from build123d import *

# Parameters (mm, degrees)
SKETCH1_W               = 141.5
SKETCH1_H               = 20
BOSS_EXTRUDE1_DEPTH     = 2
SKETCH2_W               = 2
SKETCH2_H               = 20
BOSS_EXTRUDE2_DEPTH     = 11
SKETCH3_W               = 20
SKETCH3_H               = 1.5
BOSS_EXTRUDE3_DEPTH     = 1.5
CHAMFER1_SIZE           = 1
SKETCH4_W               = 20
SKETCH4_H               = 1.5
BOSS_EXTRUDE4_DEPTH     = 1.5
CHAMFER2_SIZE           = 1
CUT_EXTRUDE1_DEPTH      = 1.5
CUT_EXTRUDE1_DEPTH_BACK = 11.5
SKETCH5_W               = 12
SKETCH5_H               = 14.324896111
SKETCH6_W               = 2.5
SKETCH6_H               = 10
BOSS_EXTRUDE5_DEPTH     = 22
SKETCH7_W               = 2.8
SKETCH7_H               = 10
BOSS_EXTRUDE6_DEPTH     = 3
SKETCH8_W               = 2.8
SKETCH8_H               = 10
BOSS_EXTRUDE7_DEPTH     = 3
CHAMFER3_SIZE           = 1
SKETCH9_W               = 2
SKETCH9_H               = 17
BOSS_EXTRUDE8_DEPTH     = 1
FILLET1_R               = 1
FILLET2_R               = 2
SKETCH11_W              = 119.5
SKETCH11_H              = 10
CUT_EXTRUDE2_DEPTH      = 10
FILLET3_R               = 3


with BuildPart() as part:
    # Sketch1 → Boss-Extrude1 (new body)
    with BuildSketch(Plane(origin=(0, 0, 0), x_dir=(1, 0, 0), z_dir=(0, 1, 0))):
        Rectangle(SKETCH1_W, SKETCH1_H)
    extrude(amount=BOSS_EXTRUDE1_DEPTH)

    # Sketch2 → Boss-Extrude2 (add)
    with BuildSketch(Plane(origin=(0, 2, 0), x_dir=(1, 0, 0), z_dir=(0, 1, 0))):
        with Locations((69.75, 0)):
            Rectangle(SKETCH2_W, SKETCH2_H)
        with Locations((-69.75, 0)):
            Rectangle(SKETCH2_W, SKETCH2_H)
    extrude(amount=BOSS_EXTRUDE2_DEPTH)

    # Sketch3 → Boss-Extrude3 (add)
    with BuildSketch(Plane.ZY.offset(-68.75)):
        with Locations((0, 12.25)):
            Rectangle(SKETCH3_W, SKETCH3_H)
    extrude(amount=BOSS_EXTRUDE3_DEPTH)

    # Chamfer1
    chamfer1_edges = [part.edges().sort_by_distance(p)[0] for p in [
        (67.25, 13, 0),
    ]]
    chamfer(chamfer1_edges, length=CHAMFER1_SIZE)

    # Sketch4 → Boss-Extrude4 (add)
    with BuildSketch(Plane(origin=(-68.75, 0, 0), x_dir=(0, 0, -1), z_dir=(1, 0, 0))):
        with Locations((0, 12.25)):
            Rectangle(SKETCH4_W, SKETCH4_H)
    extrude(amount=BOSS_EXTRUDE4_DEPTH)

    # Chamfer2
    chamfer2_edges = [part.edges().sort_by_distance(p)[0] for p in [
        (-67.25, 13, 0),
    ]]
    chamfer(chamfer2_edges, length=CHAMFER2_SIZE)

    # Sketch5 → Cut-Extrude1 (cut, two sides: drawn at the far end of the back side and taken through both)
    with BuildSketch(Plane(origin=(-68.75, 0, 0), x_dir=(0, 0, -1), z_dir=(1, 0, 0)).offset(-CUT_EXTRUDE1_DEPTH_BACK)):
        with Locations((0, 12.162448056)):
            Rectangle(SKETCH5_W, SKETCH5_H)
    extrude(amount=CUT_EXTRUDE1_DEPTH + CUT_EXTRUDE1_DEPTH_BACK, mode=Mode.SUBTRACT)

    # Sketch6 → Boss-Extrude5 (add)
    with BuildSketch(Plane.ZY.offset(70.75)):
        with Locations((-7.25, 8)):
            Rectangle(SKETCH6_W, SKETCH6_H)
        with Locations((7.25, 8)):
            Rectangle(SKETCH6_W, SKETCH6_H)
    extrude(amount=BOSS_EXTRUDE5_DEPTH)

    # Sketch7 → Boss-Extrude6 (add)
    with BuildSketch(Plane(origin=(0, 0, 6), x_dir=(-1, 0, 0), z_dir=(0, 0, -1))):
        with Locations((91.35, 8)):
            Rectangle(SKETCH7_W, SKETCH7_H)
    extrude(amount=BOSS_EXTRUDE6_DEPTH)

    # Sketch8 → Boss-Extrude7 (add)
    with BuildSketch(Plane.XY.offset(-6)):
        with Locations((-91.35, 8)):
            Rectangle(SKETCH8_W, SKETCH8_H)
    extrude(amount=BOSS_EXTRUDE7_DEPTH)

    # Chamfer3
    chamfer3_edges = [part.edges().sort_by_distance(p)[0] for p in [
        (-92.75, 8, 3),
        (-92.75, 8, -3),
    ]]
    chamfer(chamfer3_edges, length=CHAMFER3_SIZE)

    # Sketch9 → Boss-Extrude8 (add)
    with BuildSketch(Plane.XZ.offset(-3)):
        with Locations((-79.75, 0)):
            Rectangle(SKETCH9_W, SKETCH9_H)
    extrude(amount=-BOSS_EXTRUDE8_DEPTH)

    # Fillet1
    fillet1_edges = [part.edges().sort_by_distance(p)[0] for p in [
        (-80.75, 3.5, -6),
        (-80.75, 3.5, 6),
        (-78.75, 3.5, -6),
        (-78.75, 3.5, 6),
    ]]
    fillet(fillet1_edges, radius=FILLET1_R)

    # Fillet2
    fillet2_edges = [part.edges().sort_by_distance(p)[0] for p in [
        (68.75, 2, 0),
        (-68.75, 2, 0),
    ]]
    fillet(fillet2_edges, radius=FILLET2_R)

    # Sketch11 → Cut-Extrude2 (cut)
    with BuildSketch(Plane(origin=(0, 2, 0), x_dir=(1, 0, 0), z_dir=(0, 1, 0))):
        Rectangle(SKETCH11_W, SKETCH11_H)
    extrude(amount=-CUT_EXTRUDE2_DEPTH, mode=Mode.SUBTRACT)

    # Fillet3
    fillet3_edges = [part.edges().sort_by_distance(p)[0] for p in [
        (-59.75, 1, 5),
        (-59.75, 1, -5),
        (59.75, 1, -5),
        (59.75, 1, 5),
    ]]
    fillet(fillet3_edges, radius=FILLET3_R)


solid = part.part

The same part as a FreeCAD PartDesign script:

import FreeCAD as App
import Part
import Sketcher
from FreeCAD import Vector
Q = App.Units.Quantity


def edges_at(feature, points):
    """Names of the edges that pass closest to the given points."""
    edges = feature.Shape.Edges
    near = lambda p: min(range(len(edges)), key=lambda i: edges[i].distToShape(Part.Vertex(*p))[0])
    return sorted({f"Edge{near(p) + 1}" for p in points})


def add_polygon(sketch, points):
    """Adds a closed chain of lines whose ends are joined by coincident constraints."""
    first, n = sketch.GeometryCount, len(points)
    for a, b in zip(points, points[1:] + points[:1]):
        sketch.addGeometry(Part.LineSegment(App.Vector(*a, 0), App.Vector(*b, 0)), False)
    for i in range(n):
        sketch.addConstraint(Sketcher.Constraint("Coincident", first + i, 2, first + (i + 1) % n, 1))

doc = App.newDocument("Part")
body = doc.addObject("PartDesign::Body", "Body")

# Sketch on XZ plane
sketch1 = body.newObject("Sketcher::SketchObject", "Sketch")
sketch1.AttachmentSupport = (doc.getObject("XZ_Plane"), [""])
sketch1.MapMode = "FlatFace"
add_polygon(sketch1, [(-71, -10), (-71, 10), (71, 10), (71, -10)])  # lines 0-3
sketch1.addConstraint([
    Sketcher.Constraint("Vertical", 0),
    Sketcher.Constraint("Horizontal", 1),
    Sketcher.Constraint("Vertical", 2),
    Sketcher.Constraint("Horizontal", 3),
    Sketcher.Constraint("Symmetric", 0, 2, 2, 2, -1, 1),
    Sketcher.Constraint("DistanceY", 0, 1, 0, 2, Q("20 mm")),
    Sketcher.Constraint("DistanceX", 1, 1, 1, 2, Q("141.5 mm")),
])
pad1 = body.newObject("PartDesign::Pad", "Pad")
pad1.Profile = sketch1
pad1.Length = 2
pad1.Reversed = True

# Sketch on XZ plane
sketch2 = body.newObject("Sketcher::SketchObject", "Sketch001")
sketch2.AttachmentSupport = (doc.getObject("XZ_Plane"), [""])
sketch2.MapMode = "FlatFace"
sketch2.AttachmentOffset = App.Placement(Vector(0, 0, -2), App.Rotation())
add_polygon(sketch2, [(68.8, -10), (68.8, 10), (70.8, 10), (70.8, -10)])  # lines 0-3
add_polygon(sketch2, [(-70.8, -10), (-70.8, 10), (-68.8, 10), (-68.8, -10)])  # lines 4-7
sketch2.addConstraint([
    Sketcher.Constraint("Vertical", 0),
    Sketcher.Constraint("Horizontal", 1),
    Sketcher.Constraint("Vertical", 2),
    Sketcher.Constraint("Horizontal", 3),
    Sketcher.Constraint("Vertical", 4),
    Sketcher.Constraint("Horizontal", 5),
    Sketcher.Constraint("Vertical", 6),
    Sketcher.Constraint("Horizontal", 7),
    Sketcher.Constraint("Symmetric", 2, 2, 4, 2, -1, 1),
    Sketcher.Constraint("Symmetric", 0, 2, 6, 2, -1, 1),
    Sketcher.Constraint("Horizontal", 1, 2, 4, 2),
    Sketcher.Constraint("DistanceX", 1, 1, 1, 2, Q("2 mm")),
    Sketcher.Constraint("DistanceY", 0, 1, 0, 2, Q("20 mm")),
    Sketcher.Constraint("DistanceX", 4, 2, 0, 2, Q("139.5 mm")),
])
pad2 = body.newObject("PartDesign::Pad", "Pad001")
pad2.Profile = sketch2
pad2.Length = 11
pad2.Reversed = True

# Sketch on YZ plane
sketch3 = body.newObject("Sketcher::SketchObject", "Sketch002")
sketch3.AttachmentSupport = (doc.getObject("YZ_Plane"), [""])
sketch3.MapMode = "FlatFace"
sketch3.AttachmentOffset = App.Placement(Vector(0, 0, 68.75), App.Rotation())
add_polygon(sketch3, [(13, -10), (11.5, -10), (11.5, 10), (13, 10)])  # lines 0-3
sketch3.addConstraint([
    Sketcher.Constraint("Horizontal", 0),
    Sketcher.Constraint("Vertical", 1),
    Sketcher.Constraint("Horizontal", 2),
    Sketcher.Constraint("Vertical", 3),
    Sketcher.Constraint("DistanceY", 1, 1, 1, 2, Q("20 mm")),
    Sketcher.Constraint("DistanceX", 0, 2, 0, 1, Q("1.5 mm")),
    Sketcher.Constraint("DistanceY", 0, 2, -1, 1, Q("10 mm")),
    Sketcher.Constraint("DistanceX", -1, 1, 2, 2, Q("13 mm")),
])
pad3 = body.newObject("PartDesign::Pad", "Pad002")
pad3.Profile = sketch3
pad3.Length = 1.5
pad3.Reversed = True
doc.recompute()

chamfer = body.newObject("PartDesign::Chamfer", "Chamfer")
chamfer.Base = (pad3, edges_at(pad3, [(67.25, 13, 0)]))
chamfer.Size = 1

# Sketch on YZ plane
sketch4 = body.newObject("Sketcher::SketchObject", "Sketch003")
sketch4.AttachmentSupport = (doc.getObject("YZ_Plane"), [""])
sketch4.MapMode = "FlatFace"
sketch4.AttachmentOffset = App.Placement(Vector(0, 0, -68.75), App.Rotation())
add_polygon(sketch4, [(13, 10), (11.5, 10), (11.5, -10), (13, -10)])  # lines 0-3
sketch4.addConstraint([
    Sketcher.Constraint("Horizontal", 0),
    Sketcher.Constraint("Vertical", 1),
    Sketcher.Constraint("Horizontal", 2),
    Sketcher.Constraint("Vertical", 3),
    Sketcher.Constraint("DistanceY", 1, 2, 1, 1, Q("20 mm")),
    Sketcher.Constraint("DistanceX", 0, 2, 0, 1, Q("1.5 mm")),
    Sketcher.Constraint("DistanceY", -1, 1, 0, 2, Q("10 mm")),
    Sketcher.Constraint("DistanceX", -1, 1, 2, 2, Q("13 mm")),
])
pad4 = body.newObject("PartDesign::Pad", "Pad003")
pad4.Profile = sketch4
pad4.Length = 1.5
doc.recompute()

chamfer2 = body.newObject("PartDesign::Chamfer", "Chamfer001")
chamfer2.Base = (pad4, edges_at(pad4, [(-67.25, 13, 0)]))
chamfer2.Size = 1

# Sketch on YZ plane
sketch5 = body.newObject("Sketcher::SketchObject", "Sketch004")
sketch5.AttachmentSupport = (doc.getObject("YZ_Plane"), [""])
sketch5.MapMode = "FlatFace"
sketch5.AttachmentOffset = App.Placement(Vector(0, 0, -68.75), App.Rotation())
add_polygon(sketch5, [(19, 6), (5, 6), (5, -6), (19, -6)])  # lines 0-3
sketch5.addConstraint([
    Sketcher.Constraint("Horizontal", 0),
    Sketcher.Constraint("Vertical", 1),
    Sketcher.Constraint("Horizontal", 2),
    Sketcher.Constraint("Vertical", 3),
    Sketcher.Constraint("DistanceY", 1, 2, 1, 1, Q("12 mm")),
    Sketcher.Constraint("DistanceX", -1, 1, 0, 2, Q("5 mm")),
    Sketcher.Constraint("DistanceY", -1, 1, 0, 2, Q("6 mm")),
    Sketcher.Constraint("DistanceX", 0, 2, 0, 1, Q("14.324896 mm")),
])
pocket1 = body.newObject("PartDesign::Pocket", "Pocket")
pocket1.Profile = sketch5
pocket1.Type = "TwoLengths"
pocket1.Length = 1.5
pocket1.Length2 = 11.5
pocket1.Reversed = True

# Sketch on YZ plane
sketch6 = body.newObject("Sketcher::SketchObject", "Sketch005")
sketch6.AttachmentSupport = (doc.getObject("YZ_Plane"), [""])
sketch6.MapMode = "FlatFace"
sketch6.AttachmentOffset = App.Placement(Vector(0, 0, -70.75), App.Rotation())
add_polygon(sketch6, [(13, -8.5), (3, -8.5), (3, -6), (13, -6)])  # lines 0-3
add_polygon(sketch6, [(13, 6), (3, 6), (3, 8.5), (13, 8.5)])  # lines 4-7
sketch6.addConstraint([
    Sketcher.Constraint("Horizontal", 0),
    Sketcher.Constraint("Vertical", 1),
    Sketcher.Constraint("Horizontal", 2),
    Sketcher.Constraint("Vertical", 3),
    Sketcher.Constraint("Horizontal", 4),
    Sketcher.Constraint("Vertical", 5),
    Sketcher.Constraint("Horizontal", 6),
    Sketcher.Constraint("Vertical", 7),
    Sketcher.Constraint("Symmetric", 1, 2, 4, 2, -1),
    Sketcher.Constraint("Symmetric", 3, 2, 6, 2, -1),
    Sketcher.Constraint("DistanceX", 0, 2, 0, 1, Q("10 mm")),
    Sketcher.Constraint("DistanceY", 1, 1, 1, 2, Q("2.5 mm")),
    Sketcher.Constraint("DistanceX", -1, 1, 0, 2, Q("3 mm")),
    Sketcher.Constraint("DistanceY", 1, 2, -1, 1, Q("6 mm")),
])
pad5 = body.newObject("PartDesign::Pad", "Pad004")
pad5.Profile = sketch6
pad5.Length = 22
pad5.Reversed = True

# Sketch on XY plane
sketch7 = body.newObject("Sketcher::SketchObject", "Sketch006")
sketch7.AttachmentSupport = (doc.getObject("XY_Plane"), [""])
sketch7.MapMode = "FlatFace"
sketch7.AttachmentOffset = App.Placement(Vector(0, 0, 6), App.Rotation())
add_polygon(sketch7, [(-90, 13), (-90, 3), (-92.8, 3), (-92.8, 13)])  # lines 0-3
sketch7.addConstraint([
    Sketcher.Constraint("Vertical", 0),
    Sketcher.Constraint("Horizontal", 1),
    Sketcher.Constraint("Vertical", 2),
    Sketcher.Constraint("Horizontal", 3),
    Sketcher.Constraint("DistanceY", 0, 2, 0, 1, Q("10 mm")),
    Sketcher.Constraint("DistanceX", 1, 2, 1, 1, Q("2.8 mm")),
    Sketcher.Constraint("DistanceY", -1, 1, 0, 2, Q("3 mm")),
    Sketcher.Constraint("DistanceX", 0, 2, -1, 1, Q("89.95 mm")),
])
pad6 = body.newObject("PartDesign::Pad", "Pad005")
pad6.Profile = sketch7
pad6.Length = 3
pad6.Reversed = True

# Sketch on XY plane
sketch8 = body.newObject("Sketcher::SketchObject", "Sketch007")
sketch8.AttachmentSupport = (doc.getObject("XY_Plane"), [""])
sketch8.MapMode = "FlatFace"
sketch8.AttachmentOffset = App.Placement(Vector(0, 0, -6), App.Rotation())
add_polygon(sketch8, [(-92.8, 13), (-92.8, 3), (-90, 3), (-90, 13)])  # lines 0-3
sketch8.addConstraint([
    Sketcher.Constraint("Vertical", 0),
    Sketcher.Constraint("Horizontal", 1),
    Sketcher.Constraint("Vertical", 2),
    Sketcher.Constraint("Horizontal", 3),
    Sketcher.Constraint("DistanceY", 0, 2, 0, 1, Q("10 mm")),
    Sketcher.Constraint("DistanceX", 1, 1, 1, 2, Q("2.8 mm")),
    Sketcher.Constraint("DistanceY", -1, 1, 0, 2, Q("3 mm")),
    Sketcher.Constraint("DistanceX", 0, 2, -1, 1, Q("92.75 mm")),
])
pad7 = body.newObject("PartDesign::Pad", "Pad006")
pad7.Profile = sketch8
pad7.Length = 3
doc.recompute()

chamfer3 = body.newObject("PartDesign::Chamfer", "Chamfer002")
chamfer3.Base = (pad7, edges_at(pad7, [(-92.75, 8, 3), (-92.75, 8, -3)]))
chamfer3.Size = 1

# Sketch on XZ plane
sketch9 = body.newObject("Sketcher::SketchObject", "Sketch008")
sketch9.AttachmentSupport = (doc.getObject("XZ_Plane"), [""])
sketch9.MapMode = "FlatFace"
sketch9.AttachmentOffset = App.Placement(Vector(0, 0, -3), App.Rotation())
add_polygon(sketch9, [(-80.8, 8.5), (-80.8, -8.5), (-78.8, -8.5), (-78.8, 8.5)])  # lines 0-3
sketch9.addConstraint([
    Sketcher.Constraint("Vertical", 0),
    Sketcher.Constraint("Horizontal", 1),
    Sketcher.Constraint("Vertical", 2),
    Sketcher.Constraint("Horizontal", 3),
    Sketcher.Constraint("DistanceX", 1, 1, 1, 2, Q("2 mm")),
    Sketcher.Constraint("DistanceY", 0, 2, 0, 1, Q("17 mm")),
    Sketcher.Constraint("DistanceY", 0, 2, -1, 1, Q("8.5 mm")),
    Sketcher.Constraint("DistanceX", 0, 2, -1, 1, Q("80.75 mm")),
])
pad8 = body.newObject("PartDesign::Pad", "Pad007")
pad8.Profile = sketch9
pad8.Length = 1
pad8.Reversed = True
doc.recompute()

fillet = body.newObject("PartDesign::Fillet", "Fillet")
fillet.Base = (pad8, edges_at(pad8, [
    (-80.75, 3.5, -6),
    (-80.75, 3.5, 6),
    (-78.75, 3.5, -6),
    (-78.75, 3.5, 6),
]))
fillet.Radius = 1
doc.recompute()

fillet2 = body.newObject("PartDesign::Fillet", "Fillet001")
fillet2.Base = (fillet, edges_at(fillet, [(68.75, 2, 0), (-68.75, 2, 0)]))
fillet2.Radius = 2

# Sketch on XZ plane
sketch10 = body.newObject("Sketcher::SketchObject", "Sketch009")
sketch10.AttachmentSupport = (doc.getObject("XZ_Plane"), [""])
sketch10.MapMode = "FlatFace"
sketch10.AttachmentOffset = App.Placement(Vector(0, 0, -2), App.Rotation())
add_polygon(sketch10, [(-60, -5), (-60, 5), (60, 5), (60, -5)])  # lines 0-3
sketch10.addConstraint([
    Sketcher.Constraint("Vertical", 0),
    Sketcher.Constraint("Horizontal", 1),
    Sketcher.Constraint("Vertical", 2),
    Sketcher.Constraint("Horizontal", 3),
    Sketcher.Constraint("Symmetric", 0, 2, 2, 2, -1, 1),
    Sketcher.Constraint("DistanceY", 0, 1, 0, 2, Q("10 mm")),
    Sketcher.Constraint("DistanceX", 1, 1, 1, 2, Q("119.5 mm")),
])
pocket2 = body.newObject("PartDesign::Pocket", "Pocket001")
pocket2.Profile = sketch10
pocket2.Length = 10
pocket2.Reversed = True
doc.recompute()

fillet3 = body.newObject("PartDesign::Fillet", "Fillet002")
fillet3.Base = (pocket2, edges_at(pocket2, [
    (-59.75, 1, 5),
    (-59.75, 1, -5),
    (59.75, 1, -5),
    (59.75, 1, 5),
]))
fillet3.Radius = 3

doc.recompute()
